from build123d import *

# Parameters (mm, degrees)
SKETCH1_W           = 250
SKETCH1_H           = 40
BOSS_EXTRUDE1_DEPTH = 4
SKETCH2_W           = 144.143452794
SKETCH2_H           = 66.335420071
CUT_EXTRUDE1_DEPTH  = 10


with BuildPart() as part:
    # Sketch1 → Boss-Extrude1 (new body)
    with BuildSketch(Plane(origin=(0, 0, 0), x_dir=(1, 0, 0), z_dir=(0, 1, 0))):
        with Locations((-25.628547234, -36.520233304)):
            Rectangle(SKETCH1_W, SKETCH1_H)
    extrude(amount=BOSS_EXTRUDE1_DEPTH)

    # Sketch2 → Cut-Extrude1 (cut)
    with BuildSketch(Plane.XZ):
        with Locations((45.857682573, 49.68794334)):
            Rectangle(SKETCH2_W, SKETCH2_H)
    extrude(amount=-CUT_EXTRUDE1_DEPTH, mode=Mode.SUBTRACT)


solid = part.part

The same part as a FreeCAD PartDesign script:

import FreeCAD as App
import Part
import Sketcher
from FreeCAD import Vector

doc = App.newDocument("Part")
body = doc.addObject("PartDesign::Body", "Body")

# Sketch on XZ plane
sketch1 = body.newObject("Sketcher::SketchObject", "Sketch")
sketch1.AttachmentSupport = (doc.getObject("XZ_Plane"), [""])
sketch1.MapMode = "FlatFace"
sketch1.addGeometry([
    Part.LineSegment(Vector(-151, 17, 0), Vector(-151, 57, 0)),
    Part.LineSegment(Vector(-151, 57, 0), Vector(99, 57, 0)),
    Part.LineSegment(Vector(99, 57, 0), Vector(99, 17, 0)),
    Part.LineSegment(Vector(99, 17, 0), Vector(-151, 17, 0)),
], False)
sketch1.addConstraint([
    Sketcher.Constraint("Coincident", 0, 2, 1, 1),
    Sketcher.Constraint("Coincident", 1, 2, 2, 1),
    Sketcher.Constraint("Coincident", 2, 2, 3, 1),
    Sketcher.Constraint("Coincident", 3, 2, 0, 1),
    Sketcher.Constraint("Vertical", 0),
    Sketcher.Constraint("Horizontal", 1),
    Sketcher.Constraint("Vertical", 2),
    Sketcher.Constraint("Horizontal", 3),
    Sketcher.Constraint("DistanceX", 1, 1, 1, 2, 250.0),
    Sketcher.Constraint("DistanceY", 0, 1, 0, 2, 40.0),
    Sketcher.Constraint("DistanceX", 0, 2, -1, 1, 150.628547),
    Sketcher.Constraint("DistanceY", -1, 1, 0, 2, 56.520233),
])
pad1 = body.newObject("PartDesign::Pad", "Pad")
pad1.Profile = sketch1
pad1.Length = 4
pad1.Reversed = True

# Sketch on XZ plane
sketch2 = body.newObject("Sketcher::SketchObject", "Sketch001")
sketch2.AttachmentSupport = (doc.getObject("XZ_Plane"), [""])
sketch2.MapMode = "FlatFace"
sketch2.addGeometry([
    Part.LineSegment(Vector(-26, 83, 0), Vector(-26, 17, 0)),
    Part.LineSegment(Vector(-26, 17, 0), Vector(118, 17, 0)),
    Part.LineSegment(Vector(118, 17, 0), Vector(118, 83, 0)),
    Part.LineSegment(Vector(118, 83, 0), Vector(-26, 83, 0)),
], False)
sketch2.addConstraint([
    Sketcher.Constraint("Coincident", 0, 2, 1, 1),
    Sketcher.Constraint("Coincident", 1, 2, 2, 1),
    Sketcher.Constraint("Coincident", 2, 2, 3, 1),
    Sketcher.Constraint("Coincident", 3, 2, 0, 1),
    Sketcher.Constraint("Vertical", 0),
    Sketcher.Constraint("Horizontal", 1),
    Sketcher.Constraint("Vertical", 2),
    Sketcher.Constraint("Horizontal", 3),
    Sketcher.Constraint("DistanceY", 0, 2, 0, 1, 66.33542),
    Sketcher.Constraint("DistanceX", 1, 1, 1, 2, 144.143453),
    Sketcher.Constraint("DistanceX", -1, 1, 1, 2, 117.929409),
    Sketcher.Constraint("DistanceY", -1, 1, 0, 2, 16.520233),
])
pocket1 = body.newObject("PartDesign::Pocket", "Pocket")
pocket1.Profile = sketch2
pocket1.Length = 10

doc.recompute()
